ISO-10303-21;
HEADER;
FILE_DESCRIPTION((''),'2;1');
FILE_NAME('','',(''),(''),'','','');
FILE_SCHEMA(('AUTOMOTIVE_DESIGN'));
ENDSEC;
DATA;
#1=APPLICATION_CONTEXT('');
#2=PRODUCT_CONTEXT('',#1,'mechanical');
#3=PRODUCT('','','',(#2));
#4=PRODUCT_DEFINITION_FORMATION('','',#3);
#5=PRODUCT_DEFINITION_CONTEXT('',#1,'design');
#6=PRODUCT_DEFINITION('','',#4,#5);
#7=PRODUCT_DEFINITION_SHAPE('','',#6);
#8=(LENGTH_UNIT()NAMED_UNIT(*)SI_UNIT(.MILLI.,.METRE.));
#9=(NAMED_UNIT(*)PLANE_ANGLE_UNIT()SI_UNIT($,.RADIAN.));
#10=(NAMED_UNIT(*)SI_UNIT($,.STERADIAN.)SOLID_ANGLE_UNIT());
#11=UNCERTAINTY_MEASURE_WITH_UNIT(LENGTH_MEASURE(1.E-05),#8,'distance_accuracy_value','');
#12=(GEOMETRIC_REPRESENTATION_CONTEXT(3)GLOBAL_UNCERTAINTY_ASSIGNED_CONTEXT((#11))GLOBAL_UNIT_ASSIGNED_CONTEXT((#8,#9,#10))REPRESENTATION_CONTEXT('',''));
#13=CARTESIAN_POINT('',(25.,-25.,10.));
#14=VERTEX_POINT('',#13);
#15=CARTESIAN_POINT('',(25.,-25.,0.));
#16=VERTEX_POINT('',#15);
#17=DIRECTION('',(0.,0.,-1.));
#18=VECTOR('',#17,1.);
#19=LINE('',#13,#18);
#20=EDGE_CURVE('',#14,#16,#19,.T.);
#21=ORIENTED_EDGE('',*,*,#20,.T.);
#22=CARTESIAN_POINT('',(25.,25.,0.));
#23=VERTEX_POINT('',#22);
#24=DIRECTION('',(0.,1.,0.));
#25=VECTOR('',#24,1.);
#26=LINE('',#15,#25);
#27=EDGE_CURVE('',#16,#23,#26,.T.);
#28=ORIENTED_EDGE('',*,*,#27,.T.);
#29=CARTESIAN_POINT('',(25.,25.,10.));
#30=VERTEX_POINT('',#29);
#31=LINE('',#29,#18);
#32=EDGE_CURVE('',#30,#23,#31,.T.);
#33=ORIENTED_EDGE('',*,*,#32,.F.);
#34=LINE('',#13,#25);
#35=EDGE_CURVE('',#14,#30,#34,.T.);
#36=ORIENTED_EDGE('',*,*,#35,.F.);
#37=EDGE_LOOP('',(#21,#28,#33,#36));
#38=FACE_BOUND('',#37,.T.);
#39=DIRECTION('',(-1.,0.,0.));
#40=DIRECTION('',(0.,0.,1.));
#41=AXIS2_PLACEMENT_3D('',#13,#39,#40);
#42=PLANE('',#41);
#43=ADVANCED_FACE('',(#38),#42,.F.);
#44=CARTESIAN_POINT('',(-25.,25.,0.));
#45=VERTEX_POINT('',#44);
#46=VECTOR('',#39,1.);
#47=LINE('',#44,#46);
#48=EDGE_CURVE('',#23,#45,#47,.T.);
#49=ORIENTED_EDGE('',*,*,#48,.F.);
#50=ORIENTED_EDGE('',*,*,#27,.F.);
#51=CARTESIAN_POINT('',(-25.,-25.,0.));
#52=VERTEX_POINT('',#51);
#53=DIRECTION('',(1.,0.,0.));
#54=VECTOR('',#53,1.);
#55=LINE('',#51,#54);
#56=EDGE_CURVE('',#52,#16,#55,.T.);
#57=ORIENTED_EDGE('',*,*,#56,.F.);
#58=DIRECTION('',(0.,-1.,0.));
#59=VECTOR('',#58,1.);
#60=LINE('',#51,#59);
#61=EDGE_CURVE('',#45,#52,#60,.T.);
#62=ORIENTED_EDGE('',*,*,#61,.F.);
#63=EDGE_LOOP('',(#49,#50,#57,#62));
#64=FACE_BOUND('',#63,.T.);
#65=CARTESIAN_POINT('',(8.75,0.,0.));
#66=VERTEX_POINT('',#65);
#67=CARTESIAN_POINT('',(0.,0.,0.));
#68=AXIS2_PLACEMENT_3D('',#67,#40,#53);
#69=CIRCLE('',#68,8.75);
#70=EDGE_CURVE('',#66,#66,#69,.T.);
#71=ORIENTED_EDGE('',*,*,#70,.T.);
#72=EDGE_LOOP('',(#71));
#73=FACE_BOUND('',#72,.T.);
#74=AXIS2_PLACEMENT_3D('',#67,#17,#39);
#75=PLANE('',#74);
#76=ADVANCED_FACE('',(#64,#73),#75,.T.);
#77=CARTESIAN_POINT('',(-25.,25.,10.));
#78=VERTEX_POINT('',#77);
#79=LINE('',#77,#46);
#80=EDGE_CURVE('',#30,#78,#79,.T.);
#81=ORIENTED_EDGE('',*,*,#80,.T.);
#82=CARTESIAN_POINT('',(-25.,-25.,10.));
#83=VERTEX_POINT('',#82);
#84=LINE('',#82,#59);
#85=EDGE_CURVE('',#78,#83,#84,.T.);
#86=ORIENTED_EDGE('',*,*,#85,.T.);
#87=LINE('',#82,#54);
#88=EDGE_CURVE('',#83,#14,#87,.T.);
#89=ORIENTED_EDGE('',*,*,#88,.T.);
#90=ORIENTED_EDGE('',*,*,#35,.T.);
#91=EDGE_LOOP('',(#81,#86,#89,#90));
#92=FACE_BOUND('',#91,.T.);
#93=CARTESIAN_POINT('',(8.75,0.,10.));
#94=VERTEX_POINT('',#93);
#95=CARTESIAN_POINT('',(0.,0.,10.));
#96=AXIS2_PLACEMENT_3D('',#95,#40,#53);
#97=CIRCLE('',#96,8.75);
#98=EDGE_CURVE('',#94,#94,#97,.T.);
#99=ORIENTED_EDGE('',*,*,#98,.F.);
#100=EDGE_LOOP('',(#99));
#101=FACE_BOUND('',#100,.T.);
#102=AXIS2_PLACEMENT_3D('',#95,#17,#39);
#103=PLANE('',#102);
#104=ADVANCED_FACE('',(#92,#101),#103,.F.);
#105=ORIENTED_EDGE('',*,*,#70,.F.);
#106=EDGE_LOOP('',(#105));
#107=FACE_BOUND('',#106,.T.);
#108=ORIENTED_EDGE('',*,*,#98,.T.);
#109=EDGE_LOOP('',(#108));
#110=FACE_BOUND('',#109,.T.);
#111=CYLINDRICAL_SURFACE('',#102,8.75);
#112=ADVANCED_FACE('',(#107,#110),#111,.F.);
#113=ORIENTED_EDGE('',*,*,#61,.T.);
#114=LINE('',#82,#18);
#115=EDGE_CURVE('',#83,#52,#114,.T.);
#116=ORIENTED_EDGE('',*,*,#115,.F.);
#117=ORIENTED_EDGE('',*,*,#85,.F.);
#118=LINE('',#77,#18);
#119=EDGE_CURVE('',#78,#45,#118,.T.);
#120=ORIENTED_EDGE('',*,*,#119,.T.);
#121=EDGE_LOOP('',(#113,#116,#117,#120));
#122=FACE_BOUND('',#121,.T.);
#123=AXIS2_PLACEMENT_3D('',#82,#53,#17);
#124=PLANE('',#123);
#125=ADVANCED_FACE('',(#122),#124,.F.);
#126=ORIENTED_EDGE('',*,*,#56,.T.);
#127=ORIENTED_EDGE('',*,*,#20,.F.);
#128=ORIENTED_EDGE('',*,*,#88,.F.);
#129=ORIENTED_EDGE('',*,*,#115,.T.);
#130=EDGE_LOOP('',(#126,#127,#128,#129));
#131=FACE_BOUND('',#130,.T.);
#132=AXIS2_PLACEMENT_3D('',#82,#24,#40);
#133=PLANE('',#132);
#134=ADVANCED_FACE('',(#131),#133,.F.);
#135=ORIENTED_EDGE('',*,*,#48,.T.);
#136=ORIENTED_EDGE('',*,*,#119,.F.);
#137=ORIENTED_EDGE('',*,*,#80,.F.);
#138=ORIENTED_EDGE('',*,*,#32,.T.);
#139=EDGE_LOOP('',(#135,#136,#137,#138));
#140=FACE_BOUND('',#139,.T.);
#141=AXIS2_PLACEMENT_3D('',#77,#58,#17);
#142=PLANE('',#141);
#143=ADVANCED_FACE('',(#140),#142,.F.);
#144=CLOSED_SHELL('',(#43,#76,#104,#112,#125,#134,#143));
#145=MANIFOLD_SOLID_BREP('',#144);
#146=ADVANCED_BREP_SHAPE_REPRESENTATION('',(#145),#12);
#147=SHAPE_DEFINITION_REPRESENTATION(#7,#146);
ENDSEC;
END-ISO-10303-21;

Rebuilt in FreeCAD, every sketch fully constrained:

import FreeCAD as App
import Part
import Sketcher


def add_polygon(sketch, points):
    """Adds a closed chain of lines whose ends are joined by coincident constraints."""
    first, n = sketch.GeometryCount, len(points)
    for a, b in zip(points, points[1:] + points[:1]):
        sketch.addGeometry(Part.LineSegment(App.Vector(*a, 0), App.Vector(*b, 0)), False)
    for i in range(n):
        sketch.addConstraint(Sketcher.Constraint("Coincident", first + i, 2, first + (i + 1) % n, 1))

doc = App.newDocument("Part")
body = doc.addObject("PartDesign::Body", "Body")

# Sketch on XY plane
sketch1 = doc.addObject("Sketcher::SketchObject", "Sketch")
body.addObject(sketch1)
sketch1.AttachmentSupport = (doc.XY_Plane, [""])
sketch1.MapMode = "FlatFace"
add_polygon(sketch1, [(-25, 25), (-25, -25), (25, -25), (25, 25)])  # lines 0-3
sketch1.addGeometry(Part.Circle(App.Vector(0, 0, 0), App.Vector(0, 0, 1), 9), False)  # 4
sketch1.addConstraint(Sketcher.Constraint("Vertical", 0))
sketch1.addConstraint(Sketcher.Constraint("Horizontal", 1))
sketch1.addConstraint(Sketcher.Constraint("Vertical", 2))
sketch1.addConstraint(Sketcher.Constraint("Horizontal", 3))
sketch1.addConstraint(Sketcher.Constraint("Coincident", 4, 3, -1, 1))
sketch1.addConstraint(Sketcher.Constraint("Symmetric", 0, 2, 2, 2, -1, 1))
sketch1.addConstraint(Sketcher.Constraint("Equal", 3, 0))
sketch1.addConstraint(Sketcher.Constraint("Diameter", 4, 17.5))
sketch1.addConstraint(Sketcher.Constraint("DistanceX", 1, 1, 1, 2, 50.0))
pad1 = doc.addObject("PartDesign::Pad", "Pad")
body.addObject(pad1)
pad1.Profile = sketch1
pad1.Length = 10

doc.recompute()
